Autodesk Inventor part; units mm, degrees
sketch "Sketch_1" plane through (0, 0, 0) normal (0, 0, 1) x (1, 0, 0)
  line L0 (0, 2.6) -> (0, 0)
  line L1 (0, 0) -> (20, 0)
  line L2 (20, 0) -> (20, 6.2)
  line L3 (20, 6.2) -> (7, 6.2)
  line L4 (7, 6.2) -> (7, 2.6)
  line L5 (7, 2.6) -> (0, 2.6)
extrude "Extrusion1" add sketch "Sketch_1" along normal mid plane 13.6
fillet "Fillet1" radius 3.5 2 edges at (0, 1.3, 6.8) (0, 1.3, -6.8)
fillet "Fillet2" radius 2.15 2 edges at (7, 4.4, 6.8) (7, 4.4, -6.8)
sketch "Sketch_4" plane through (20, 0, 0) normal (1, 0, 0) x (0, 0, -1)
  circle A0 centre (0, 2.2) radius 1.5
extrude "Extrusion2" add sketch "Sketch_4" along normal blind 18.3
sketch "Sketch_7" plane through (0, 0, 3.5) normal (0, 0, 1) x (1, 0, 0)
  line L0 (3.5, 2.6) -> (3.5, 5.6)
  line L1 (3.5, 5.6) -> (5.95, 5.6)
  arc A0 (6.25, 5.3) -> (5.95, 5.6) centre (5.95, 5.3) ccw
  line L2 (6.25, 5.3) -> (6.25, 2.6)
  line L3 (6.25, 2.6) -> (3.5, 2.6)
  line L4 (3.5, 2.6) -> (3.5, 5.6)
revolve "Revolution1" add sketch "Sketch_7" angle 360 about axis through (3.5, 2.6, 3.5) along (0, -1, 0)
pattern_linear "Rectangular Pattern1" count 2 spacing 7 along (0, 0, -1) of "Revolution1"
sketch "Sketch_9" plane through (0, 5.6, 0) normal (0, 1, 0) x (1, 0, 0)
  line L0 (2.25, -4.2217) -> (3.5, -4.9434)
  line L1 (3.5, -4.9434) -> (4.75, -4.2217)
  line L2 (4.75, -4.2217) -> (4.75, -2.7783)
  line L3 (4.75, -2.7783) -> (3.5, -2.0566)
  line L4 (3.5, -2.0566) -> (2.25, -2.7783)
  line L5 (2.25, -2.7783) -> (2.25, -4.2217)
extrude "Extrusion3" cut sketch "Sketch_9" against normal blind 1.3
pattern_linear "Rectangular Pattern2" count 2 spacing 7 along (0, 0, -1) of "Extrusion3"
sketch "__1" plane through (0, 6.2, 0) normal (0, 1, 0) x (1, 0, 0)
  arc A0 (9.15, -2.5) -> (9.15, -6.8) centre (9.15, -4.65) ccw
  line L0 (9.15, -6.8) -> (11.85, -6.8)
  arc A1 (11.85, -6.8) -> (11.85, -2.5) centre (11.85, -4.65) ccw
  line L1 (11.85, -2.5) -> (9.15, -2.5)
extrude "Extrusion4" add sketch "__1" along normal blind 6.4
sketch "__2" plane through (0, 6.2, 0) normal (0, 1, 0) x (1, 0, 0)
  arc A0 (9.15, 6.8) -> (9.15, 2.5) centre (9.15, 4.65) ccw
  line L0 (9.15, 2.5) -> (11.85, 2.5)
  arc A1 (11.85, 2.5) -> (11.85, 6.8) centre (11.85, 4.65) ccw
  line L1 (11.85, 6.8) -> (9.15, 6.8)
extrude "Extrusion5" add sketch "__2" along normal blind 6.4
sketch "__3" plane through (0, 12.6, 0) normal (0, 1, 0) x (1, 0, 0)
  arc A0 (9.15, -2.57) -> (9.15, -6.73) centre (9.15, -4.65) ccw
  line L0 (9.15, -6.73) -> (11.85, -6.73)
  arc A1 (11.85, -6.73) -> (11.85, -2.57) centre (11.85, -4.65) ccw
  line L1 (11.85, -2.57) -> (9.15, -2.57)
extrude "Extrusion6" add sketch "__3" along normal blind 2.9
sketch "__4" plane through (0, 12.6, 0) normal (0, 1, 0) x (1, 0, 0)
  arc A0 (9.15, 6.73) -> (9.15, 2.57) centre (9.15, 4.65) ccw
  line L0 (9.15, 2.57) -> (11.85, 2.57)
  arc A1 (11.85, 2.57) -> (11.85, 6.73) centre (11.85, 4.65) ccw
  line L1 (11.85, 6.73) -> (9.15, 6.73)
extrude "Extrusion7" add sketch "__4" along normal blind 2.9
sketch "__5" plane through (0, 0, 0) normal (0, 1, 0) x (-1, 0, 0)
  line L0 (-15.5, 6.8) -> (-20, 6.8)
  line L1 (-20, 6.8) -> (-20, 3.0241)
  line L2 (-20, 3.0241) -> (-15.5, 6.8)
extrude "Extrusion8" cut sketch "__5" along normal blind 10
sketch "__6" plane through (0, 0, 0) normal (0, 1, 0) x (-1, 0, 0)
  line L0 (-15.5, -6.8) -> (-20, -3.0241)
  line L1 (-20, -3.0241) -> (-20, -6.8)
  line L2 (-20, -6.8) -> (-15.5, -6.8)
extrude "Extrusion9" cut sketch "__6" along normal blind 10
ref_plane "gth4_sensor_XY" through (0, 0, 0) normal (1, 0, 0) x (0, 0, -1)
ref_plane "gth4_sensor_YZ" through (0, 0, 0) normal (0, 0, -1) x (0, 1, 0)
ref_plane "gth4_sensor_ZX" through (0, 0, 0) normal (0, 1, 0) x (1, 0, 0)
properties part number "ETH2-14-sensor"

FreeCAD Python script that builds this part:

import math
import FreeCAD as App
import Part
import Sketcher

V = App.Vector
Q = App.Units.Quantity


def edges_at(feature, points):
    """Names of the edges that pass closest to the given points."""
    edges = feature.Shape.Edges
    near = lambda p: min(range(len(edges)), key=lambda i: edges[i].distToShape(Part.Vertex(*p))[0])
    return sorted({f"Edge{near(p) + 1}" for p in points})

doc = App.newDocument("Part")
body = doc.addObject("PartDesign::Body", "Body")

# Sketch on XY plane
sketch1 = body.newObject("Sketcher::SketchObject", "Sketch")
sketch1.AttachmentSupport = (doc.getObject("XY_Plane"), [""])
sketch1.MapMode = "FlatFace"
sketch1.addGeometry([
    Part.LineSegment(V(7, 2.6, 0), V(0, 2.6, 0)),  # 0
    Part.LineSegment(V(0, 2.6, 0), V(0, 0, 0)),  # 1
    Part.LineSegment(V(0, 0, 0), V(20, 0, 0)),  # 2
    Part.LineSegment(V(20, 0, 0), V(20, 6.2, 0)),  # 3
    Part.LineSegment(V(20, 6.2, 0), V(7, 6.2, 0)),  # 4
    Part.LineSegment(V(7, 6.2, 0), V(7, 2.6, 0)),  # 5
], False)
sketch1.addConstraint([
    Sketcher.Constraint("Coincident", 0, 2, 1, 1),
    Sketcher.Constraint("Coincident", 1, 2, 2, 1),
    Sketcher.Constraint("Coincident", 2, 2, 3, 1),
    Sketcher.Constraint("Coincident", 3, 2, 4, 1),
    Sketcher.Constraint("Coincident", 4, 2, 5, 1),
    Sketcher.Constraint("Coincident", 5, 2, 0, 1),
    Sketcher.Constraint("Horizontal", 0),
    Sketcher.Constraint("Vertical", 1),
    Sketcher.Constraint("Horizontal", 2),
    Sketcher.Constraint("Vertical", 3),
    Sketcher.Constraint("Horizontal", 4),
    Sketcher.Constraint("Vertical", 5),
    Sketcher.Constraint("Coincident", 1, 2, -1, 1),
    Sketcher.Constraint("DistanceX", 0, 2, 0, 1, Q("7 mm")),
    Sketcher.Constraint("DistanceX", 2, 1, 2, 2, Q("20 mm")),
    Sketcher.Constraint("DistanceY", 1, 2, 1, 1, Q("2.6 mm")),
    Sketcher.Constraint("DistanceY", 3, 1, 3, 2, Q("6.2 mm")),
])
pad1 = body.newObject("PartDesign::Pad", "Pad")
pad1.Profile = sketch1
pad1.Length = 13.6
pad1.Midplane = True
doc.recompute()

fillet = body.newObject("PartDesign::Fillet", "Fillet")
fillet.Base = (pad1, edges_at(pad1, [(0, 1.3, 6.8), (0, 1.3, -6.8)]))
fillet.Radius = 3.5
doc.recompute()

fillet2 = body.newObject("PartDesign::Fillet", "Fillet001")
fillet2.Base = (fillet, edges_at(fillet, [(7, 4.4, 6.8), (7, 4.4, -6.8)]))
fillet2.Radius = 2.15

# Sketch on YZ plane
sketch2 = body.newObject("Sketcher::SketchObject", "Sketch001")
sketch2.AttachmentSupport = (doc.getObject("YZ_Plane"), [""])
sketch2.MapMode = "FlatFace"
sketch2.AttachmentOffset = App.Placement(V(0, 0, 20), App.Rotation())
sketch2.addGeometry(Part.Circle(V(2.2, 0, 0), V(0, 0, 1), 1.5), False)
sketch2.addConstraint([
    Sketcher.Constraint("PointOnObject", 0, 3, -1),
    Sketcher.Constraint("Diameter", 0, Q("3 mm")),
    Sketcher.Constraint("DistanceX", -1, 1, 0, 3, Q("2.2 mm")),
])
pad2 = body.newObject("PartDesign::Pad", "Pad001")
pad2.Profile = sketch2
pad2.Length = 18.3

# Sketch on XY plane
sketch3 = body.newObject("Sketcher::SketchObject", "Sketch002")
sketch3.AttachmentSupport = (doc.getObject("XY_Plane"), [""])
sketch3.MapMode = "FlatFace"
sketch3.AttachmentOffset = App.Placement(V(0, 0, 3.5), App.Rotation())
sketch3.addGeometry([
    Part.LineSegment(V(3.5, 5.6, 0), V(3.5, 2.6, 0)),  # 0
    Part.LineSegment(V(3.5, 2.6, 0), V(6.25, 2.6, 0)),  # 1
    Part.LineSegment(V(6.25, 2.6, 0), V(6.25, 5.3, 0)),  # 2
    Part.ArcOfCircle(Part.Circle(V(5.95, 5.3, 0), V(0, 0, 1), 0.3), math.radians(0), math.radians(90)),  # 3
    Part.LineSegment(V(5.95, 5.6, 0), V(3.5, 5.6, 0)),  # 4
], False)
sketch3.addGeometry(Part.LineSegment(V(3.5, 5.6, 0), V(3.5, 2.6, 0)), True)  # axis
sketch3.addConstraint([
    Sketcher.Constraint("Coincident", 0, 2, 1, 1),
    Sketcher.Constraint("Coincident", 1, 2, 2, 1),
    Sketcher.Constraint("Tangent", 2, 2, 3, 1),
    Sketcher.Constraint("Tangent", 3, 2, 4, 1),
    Sketcher.Constraint("Coincident", 4, 2, 0, 1),
    Sketcher.Constraint("Vertical", 0),
    Sketcher.Constraint("Horizontal", 1),
    Sketcher.Constraint("Vertical", 2),
    Sketcher.Constraint("Horizontal", 4),
    Sketcher.Constraint("Vertical", 5),
    Sketcher.Constraint("Coincident", 5, 1, 4, 2),
    Sketcher.Constraint("Horizontal", 1, 2, 5, 2),
    Sketcher.Constraint("Radius", 3, Q("0.3 mm")),
    Sketcher.Constraint("DistanceY", 0, 2, 0, 1, Q("3 mm")),
    Sketcher.Constraint("DistanceX", 1, 1, 1, 2, Q("2.75 mm")),
    Sketcher.Constraint("DistanceY", -1, 1, 3, 3, Q("5.3 mm")),
    Sketcher.Constraint("DistanceX", -1, 1, 0, 2, Q("3.5 mm")),
])
revolution = body.newObject("PartDesign::Revolution", "Revolution")
revolution.Profile = sketch3
revolution.ReferenceAxis = (sketch3, ["Axis0"])
revolution.Angle = 360
doc.recompute()

linearpattern = body.newObject("PartDesign::LinearPattern", "LinearPattern")
linearpattern.Originals = [revolution]
linearpattern.Direction = (doc.getObject("Z_Axis"), [""])
linearpattern.Mode = "offset"
linearpattern.Offset = 7
linearpattern.Occurrences = 2
linearpattern.Reversed = True
body.Tip = linearpattern

# Sketch on XZ plane
sketch4 = body.newObject("Sketcher::SketchObject", "Sketch003")
sketch4.AttachmentSupport = (doc.getObject("XZ_Plane"), [""])
sketch4.MapMode = "FlatFace"
sketch4.AttachmentOffset = App.Placement(V(0, 0, -5.6), App.Rotation())
sketch4.addGeometry([
    Part.LineSegment(V(2.2, 2.8, 0), V(2.2, 4.2, 0)),  # 0
    Part.LineSegment(V(2.2, 4.2, 0), V(3.5, 4.9, 0)),  # 1
    Part.LineSegment(V(3.5, 4.9, 0), V(4.8, 4.2, 0)),  # 2
    Part.LineSegment(V(4.8, 4.2, 0), V(4.8, 2.8, 0)),  # 3
    Part.LineSegment(V(4.8, 2.8, 0), V(3.5, 2.1, 0)),  # 4
    Part.LineSegment(V(3.5, 2.1, 0), V(2.2, 2.8, 0)),  # 5
], False)
sketch4.addConstraint([
    Sketcher.Constraint("Coincident", 0, 2, 1, 1),
    Sketcher.Constraint("Coincident", 1, 2, 2, 1),
    Sketcher.Constraint("Coincident", 2, 2, 3, 1),
    Sketcher.Constraint("Coincident", 3, 2, 4, 1),
    Sketcher.Constraint("Coincident", 4, 2, 5, 1),
    Sketcher.Constraint("Coincident", 5, 2, 0, 1),
    Sketcher.Constraint("Vertical", 0),
    Sketcher.Constraint("Vertical", 3),
    Sketcher.Constraint("Parallel", 1, 4),
    Sketcher.Constraint("Parallel", 2, 5),
    Sketcher.Constraint("Horizontal", 0, 2, 2, 2),
    Sketcher.Constraint("Horizontal", 3, 2, 5, 2),
    Sketcher.Constraint("Vertical", 1, 2, 4, 2),
    Sketcher.Constraint("Angle", 1, Q("30.0004 deg")),
    Sketcher.Constraint("DistanceX", -1, 1, 1, 2, Q("3.5 mm")),
    Sketcher.Constraint("DistanceX", 0, 2, 2, 2, Q("2.5 mm")),
    Sketcher.Constraint("DistanceY", 0, 1, 0, 2, Q("1.4434 mm")),
    Sketcher.Constraint("DistanceY", -1, 1, 0, 2, Q("4.2217 mm")),
])
pocket1 = body.newObject("PartDesign::Pocket", "Pocket")
pocket1.Profile = sketch4
pocket1.Length = 1.3
pocket1.Reversed = True
doc.recompute()

linearpattern2 = body.newObject("PartDesign::LinearPattern", "LinearPattern001")
linearpattern2.Originals = [pocket1]
linearpattern2.Direction = (doc.getObject("Z_Axis"), [""])
linearpattern2.Mode = "offset"
linearpattern2.Offset = 7
linearpattern2.Occurrences = 2
linearpattern2.Reversed = True
body.Tip = linearpattern2

# Sketch on XZ plane
sketch5 = body.newObject("Sketcher::SketchObject", "Sketch004")
sketch5.AttachmentSupport = (doc.getObject("XZ_Plane"), [""])
sketch5.MapMode = "FlatFace"
sketch5.AttachmentOffset = App.Placement(V(0, 0, -6.2), App.Rotation())
sketch5.addGeometry([
    Part.LineSegment(V(11.8, 2.5, 0), V(9.2, 2.5, 0)),
    Part.ArcOfCircle(Part.Circle(V(9.2, 4.7, 0), V(0, 0, 1), 2.2), math.radians(90), math.radians(270)),
    Part.LineSegment(V(9.2, 6.8, 0), V(11.8, 6.8, 0)),
    Part.ArcOfCircle(Part.Circle(V(11.8, 4.7, 0), V(0, 0, 1), 2.1), math.radians(-90), math.radians(90)),
], False)
sketch5.addConstraint([
    Sketcher.Constraint("Tangent", 0, 2, 1, 2),
    Sketcher.Constraint("Tangent", 1, 1, 2, 1),
    Sketcher.Constraint("Tangent", 2, 2, 3, 2),
    Sketcher.Constraint("Tangent", 3, 1, 0, 1),
    Sketcher.Constraint("Horizontal", 0),
    Sketcher.Constraint("Horizontal", 2),
    Sketcher.Constraint("Radius", 1, Q("2.15 mm")),
    Sketcher.Constraint("DistanceX", 0, 2, 0, 1, Q("2.7 mm")),
    Sketcher.Constraint("DistanceY", -1, 1, 0, 2, Q("2.5 mm")),
    Sketcher.Constraint("DistanceX", -1, 1, 1, 3, Q("9.15 mm")),
])
pad3 = body.newObject("PartDesign::Pad", "Pad002")
pad3.Profile = sketch5
pad3.Length = 6.4
pad3.Reversed = True

# Sketch on XZ plane
sketch6 = body.newObject("Sketcher::SketchObject", "Sketch005")
sketch6.AttachmentSupport = (doc.getObject("XZ_Plane"), [""])
sketch6.MapMode = "FlatFace"
sketch6.AttachmentOffset = App.Placement(V(0, 0, -6.2), App.Rotation())
sketch6.addGeometry([
    Part.LineSegment(V(11.8, -6.8, 0), V(9.2, -6.8, 0)),
    Part.ArcOfCircle(Part.Circle(V(9.2, -4.7, 0), V(0, 0, 1), 2.1), math.radians(90), math.radians(270)),
    Part.LineSegment(V(9.2, -2.5, 0), V(11.8, -2.5, 0)),
    Part.ArcOfCircle(Part.Circle(V(11.8, -4.7, 0), V(0, 0, 1), 2.2), math.radians(-90), math.radians(90)),
], False)
sketch6.addConstraint([
    Sketcher.Constraint("Tangent", 0, 2, 1, 2),
    Sketcher.Constraint("Tangent", 1, 1, 2, 1),
    Sketcher.Constraint("Tangent", 2, 2, 3, 2),
    Sketcher.Constraint("Tangent", 3, 1, 0, 1),
    Sketcher.Constraint("Horizontal", 0),
    Sketcher.Constraint("Horizontal", 2),
    Sketcher.Constraint("Radius", 1, Q("2.15 mm")),
    Sketcher.Constraint("DistanceX", 0, 2, 0, 1, Q("2.7 mm")),
    Sketcher.Constraint("DistanceY", 0, 2, -1, 1, Q("6.8 mm")),
    Sketcher.Constraint("DistanceX", -1, 1, 1, 3, Q("9.15 mm")),
])
pad4 = body.newObject("PartDesign::Pad", "Pad003")
pad4.Profile = sketch6
pad4.Length = 6.4
pad4.Reversed = True

# Sketch on XZ plane
sketch7 = body.newObject("Sketcher::SketchObject", "Sketch006")
sketch7.AttachmentSupport = (doc.getObject("XZ_Plane"), [""])
sketch7.MapMode = "FlatFace"
sketch7.AttachmentOffset = App.Placement(V(0, 0, -12.6), App.Rotation())
sketch7.addGeometry([
    Part.LineSegment(V(11.8, 2.6, 0), V(9.2, 2.6, 0)),
    Part.ArcOfCircle(Part.Circle(V(9.2, 4.7, 0), V(0, 0, 1), 2.1), math.radians(90), math.radians(270)),
    Part.LineSegment(V(9.2, 6.7, 0), V(11.8, 6.7, 0)),
    Part.ArcOfCircle(Part.Circle(V(11.8, 4.7, 0), V(0, 0, 1), 2.1), math.radians(-90), math.radians(90)),
], False)
sketch7.addConstraint([
    Sketcher.Constraint("Tangent", 0, 2, 1, 2),
    Sketcher.Constraint("Tangent", 1, 1, 2, 1),
    Sketcher.Constraint("Tangent", 2, 2, 3, 2),
    Sketcher.Constraint("Tangent", 3, 1, 0, 1),
    Sketcher.Constraint("Horizontal", 0),
    Sketcher.Constraint("Horizontal", 2),
    Sketcher.Constraint("Radius", 1, Q("2.08 mm")),
    Sketcher.Constraint("DistanceX", 0, 2, 0, 1, Q("2.7 mm")),
    Sketcher.Constraint("DistanceX", -1, 1, 1, 3, Q("9.15 mm")),
    Sketcher.Constraint("DistanceY", -1, 1, 1, 3, Q("4.65 mm")),
])
pad5 = body.newObject("PartDesign::Pad", "Pad004")
pad5.Profile = sketch7
pad5.Length = 2.9
pad5.Reversed = True

# Sketch on XZ plane
sketch8 = body.newObject("Sketcher::SketchObject", "Sketch007")
sketch8.AttachmentSupport = (doc.getObject("XZ_Plane"), [""])
sketch8.MapMode = "FlatFace"
sketch8.AttachmentOffset = App.Placement(V(0, 0, -12.6), App.Rotation())
sketch8.addGeometry([
    Part.LineSegment(V(11.8, -6.7, 0), V(9.2, -6.7, 0)),
    Part.ArcOfCircle(Part.Circle(V(9.2, -4.7, 0), V(0, 0, 1), 2.1), math.radians(90), math.radians(270)),
    Part.LineSegment(V(9.2, -2.6, 0), V(11.8, -2.6, 0)),
    Part.ArcOfCircle(Part.Circle(V(11.8, -4.7, 0), V(0, 0, 1), 2.1), math.radians(-90), math.radians(90)),
], False)
sketch8.addConstraint([
    Sketcher.Constraint("Tangent", 0, 2, 1, 2),
    Sketcher.Constraint("Tangent", 1, 1, 2, 1),
    Sketcher.Constraint("Tangent", 2, 2, 3, 2),
    Sketcher.Constraint("Tangent", 3, 1, 0, 1),
    Sketcher.Constraint("Horizontal", 0),
    Sketcher.Constraint("Horizontal", 2),
    Sketcher.Constraint("Radius", 1, Q("2.08 mm")),
    Sketcher.Constraint("DistanceX", 0, 2, 0, 1, Q("2.7 mm")),
    Sketcher.Constraint("DistanceX", -1, 1, 1, 3, Q("9.15 mm")),
    Sketcher.Constraint("DistanceY", 1, 3, -1, 1, Q("4.65 mm")),
])
pad6 = body.newObject("PartDesign::Pad", "Pad005")
pad6.Profile = sketch8
pad6.Length = 2.9
pad6.Reversed = True

# Sketch on XZ plane
sketch9 = body.newObject("Sketcher::SketchObject", "Sketch008")
sketch9.AttachmentSupport = (doc.getObject("XZ_Plane"), [""])
sketch9.MapMode = "FlatFace"
sketch9.addGeometry([
    Part.LineSegment(V(20, 3, 0), V(15.5, 6.8, 0)),
    Part.LineSegment(V(15.5, 6.8, 0), V(20, 6.8, 0)),
    Part.LineSegment(V(20, 6.8, 0), V(20, 3, 0)),
], False)
sketch9.addConstraint([
    Sketcher.Constraint("Coincident", 0, 2, 1, 1),
    Sketcher.Constraint("Coincident", 1, 2, 2, 1),
    Sketcher.Constraint("Coincident", 2, 2, 0, 1),
    Sketcher.Constraint("Horizontal", 1),
    Sketcher.Constraint("Vertical", 2),
    Sketcher.Constraint("Angle", 0, Q("140.0004 deg")),
    Sketcher.Constraint("DistanceX", 1, 1, 1, 2, Q("4.5 mm")),
    Sketcher.Constraint("DistanceX", -1, 1, 1, 2, Q("20 mm")),
    Sketcher.Constraint("DistanceY", -1, 1, 0, 2, Q("6.8 mm")),
])
pocket2 = body.newObject("PartDesign::Pocket", "Pocket001")
pocket2.Profile = sketch9
pocket2.Length = 10

# Sketch on XZ plane
sketch10 = body.newObject("Sketcher::SketchObject", "Sketch009")
sketch10.AttachmentSupport = (doc.getObject("XZ_Plane"), [""])
sketch10.MapMode = "FlatFace"
sketch10.addGeometry([
    Part.LineSegment(V(20, -6.8, 0), V(15.5, -6.8, 0)),
    Part.LineSegment(V(15.5, -6.8, 0), V(20, -3, 0)),
    Part.LineSegment(V(20, -3, 0), V(20, -6.8, 0)),
], False)
sketch10.addConstraint([
    Sketcher.Constraint("Coincident", 0, 2, 1, 1),
    Sketcher.Constraint("Coincident", 1, 2, 2, 1),
    Sketcher.Constraint("Coincident", 2, 2, 0, 1),
    Sketcher.Constraint("Horizontal", 0),
    Sketcher.Constraint("Vertical", 2),
    Sketcher.Constraint("Angle", 1, Q("39.9996 deg")),
    Sketcher.Constraint("DistanceX", 0, 2, 0, 1, Q("4.5 mm")),
    Sketcher.Constraint("DistanceX", -1, 1, 1, 2, Q("20 mm")),
    Sketcher.Constraint("DistanceY", 0, 2, -1, 1, Q("6.8 mm")),
])
pocket3 = body.newObject("PartDesign::Pocket", "Pocket002")
pocket3.Profile = sketch10
pocket3.Length = 10

doc.recompute()
